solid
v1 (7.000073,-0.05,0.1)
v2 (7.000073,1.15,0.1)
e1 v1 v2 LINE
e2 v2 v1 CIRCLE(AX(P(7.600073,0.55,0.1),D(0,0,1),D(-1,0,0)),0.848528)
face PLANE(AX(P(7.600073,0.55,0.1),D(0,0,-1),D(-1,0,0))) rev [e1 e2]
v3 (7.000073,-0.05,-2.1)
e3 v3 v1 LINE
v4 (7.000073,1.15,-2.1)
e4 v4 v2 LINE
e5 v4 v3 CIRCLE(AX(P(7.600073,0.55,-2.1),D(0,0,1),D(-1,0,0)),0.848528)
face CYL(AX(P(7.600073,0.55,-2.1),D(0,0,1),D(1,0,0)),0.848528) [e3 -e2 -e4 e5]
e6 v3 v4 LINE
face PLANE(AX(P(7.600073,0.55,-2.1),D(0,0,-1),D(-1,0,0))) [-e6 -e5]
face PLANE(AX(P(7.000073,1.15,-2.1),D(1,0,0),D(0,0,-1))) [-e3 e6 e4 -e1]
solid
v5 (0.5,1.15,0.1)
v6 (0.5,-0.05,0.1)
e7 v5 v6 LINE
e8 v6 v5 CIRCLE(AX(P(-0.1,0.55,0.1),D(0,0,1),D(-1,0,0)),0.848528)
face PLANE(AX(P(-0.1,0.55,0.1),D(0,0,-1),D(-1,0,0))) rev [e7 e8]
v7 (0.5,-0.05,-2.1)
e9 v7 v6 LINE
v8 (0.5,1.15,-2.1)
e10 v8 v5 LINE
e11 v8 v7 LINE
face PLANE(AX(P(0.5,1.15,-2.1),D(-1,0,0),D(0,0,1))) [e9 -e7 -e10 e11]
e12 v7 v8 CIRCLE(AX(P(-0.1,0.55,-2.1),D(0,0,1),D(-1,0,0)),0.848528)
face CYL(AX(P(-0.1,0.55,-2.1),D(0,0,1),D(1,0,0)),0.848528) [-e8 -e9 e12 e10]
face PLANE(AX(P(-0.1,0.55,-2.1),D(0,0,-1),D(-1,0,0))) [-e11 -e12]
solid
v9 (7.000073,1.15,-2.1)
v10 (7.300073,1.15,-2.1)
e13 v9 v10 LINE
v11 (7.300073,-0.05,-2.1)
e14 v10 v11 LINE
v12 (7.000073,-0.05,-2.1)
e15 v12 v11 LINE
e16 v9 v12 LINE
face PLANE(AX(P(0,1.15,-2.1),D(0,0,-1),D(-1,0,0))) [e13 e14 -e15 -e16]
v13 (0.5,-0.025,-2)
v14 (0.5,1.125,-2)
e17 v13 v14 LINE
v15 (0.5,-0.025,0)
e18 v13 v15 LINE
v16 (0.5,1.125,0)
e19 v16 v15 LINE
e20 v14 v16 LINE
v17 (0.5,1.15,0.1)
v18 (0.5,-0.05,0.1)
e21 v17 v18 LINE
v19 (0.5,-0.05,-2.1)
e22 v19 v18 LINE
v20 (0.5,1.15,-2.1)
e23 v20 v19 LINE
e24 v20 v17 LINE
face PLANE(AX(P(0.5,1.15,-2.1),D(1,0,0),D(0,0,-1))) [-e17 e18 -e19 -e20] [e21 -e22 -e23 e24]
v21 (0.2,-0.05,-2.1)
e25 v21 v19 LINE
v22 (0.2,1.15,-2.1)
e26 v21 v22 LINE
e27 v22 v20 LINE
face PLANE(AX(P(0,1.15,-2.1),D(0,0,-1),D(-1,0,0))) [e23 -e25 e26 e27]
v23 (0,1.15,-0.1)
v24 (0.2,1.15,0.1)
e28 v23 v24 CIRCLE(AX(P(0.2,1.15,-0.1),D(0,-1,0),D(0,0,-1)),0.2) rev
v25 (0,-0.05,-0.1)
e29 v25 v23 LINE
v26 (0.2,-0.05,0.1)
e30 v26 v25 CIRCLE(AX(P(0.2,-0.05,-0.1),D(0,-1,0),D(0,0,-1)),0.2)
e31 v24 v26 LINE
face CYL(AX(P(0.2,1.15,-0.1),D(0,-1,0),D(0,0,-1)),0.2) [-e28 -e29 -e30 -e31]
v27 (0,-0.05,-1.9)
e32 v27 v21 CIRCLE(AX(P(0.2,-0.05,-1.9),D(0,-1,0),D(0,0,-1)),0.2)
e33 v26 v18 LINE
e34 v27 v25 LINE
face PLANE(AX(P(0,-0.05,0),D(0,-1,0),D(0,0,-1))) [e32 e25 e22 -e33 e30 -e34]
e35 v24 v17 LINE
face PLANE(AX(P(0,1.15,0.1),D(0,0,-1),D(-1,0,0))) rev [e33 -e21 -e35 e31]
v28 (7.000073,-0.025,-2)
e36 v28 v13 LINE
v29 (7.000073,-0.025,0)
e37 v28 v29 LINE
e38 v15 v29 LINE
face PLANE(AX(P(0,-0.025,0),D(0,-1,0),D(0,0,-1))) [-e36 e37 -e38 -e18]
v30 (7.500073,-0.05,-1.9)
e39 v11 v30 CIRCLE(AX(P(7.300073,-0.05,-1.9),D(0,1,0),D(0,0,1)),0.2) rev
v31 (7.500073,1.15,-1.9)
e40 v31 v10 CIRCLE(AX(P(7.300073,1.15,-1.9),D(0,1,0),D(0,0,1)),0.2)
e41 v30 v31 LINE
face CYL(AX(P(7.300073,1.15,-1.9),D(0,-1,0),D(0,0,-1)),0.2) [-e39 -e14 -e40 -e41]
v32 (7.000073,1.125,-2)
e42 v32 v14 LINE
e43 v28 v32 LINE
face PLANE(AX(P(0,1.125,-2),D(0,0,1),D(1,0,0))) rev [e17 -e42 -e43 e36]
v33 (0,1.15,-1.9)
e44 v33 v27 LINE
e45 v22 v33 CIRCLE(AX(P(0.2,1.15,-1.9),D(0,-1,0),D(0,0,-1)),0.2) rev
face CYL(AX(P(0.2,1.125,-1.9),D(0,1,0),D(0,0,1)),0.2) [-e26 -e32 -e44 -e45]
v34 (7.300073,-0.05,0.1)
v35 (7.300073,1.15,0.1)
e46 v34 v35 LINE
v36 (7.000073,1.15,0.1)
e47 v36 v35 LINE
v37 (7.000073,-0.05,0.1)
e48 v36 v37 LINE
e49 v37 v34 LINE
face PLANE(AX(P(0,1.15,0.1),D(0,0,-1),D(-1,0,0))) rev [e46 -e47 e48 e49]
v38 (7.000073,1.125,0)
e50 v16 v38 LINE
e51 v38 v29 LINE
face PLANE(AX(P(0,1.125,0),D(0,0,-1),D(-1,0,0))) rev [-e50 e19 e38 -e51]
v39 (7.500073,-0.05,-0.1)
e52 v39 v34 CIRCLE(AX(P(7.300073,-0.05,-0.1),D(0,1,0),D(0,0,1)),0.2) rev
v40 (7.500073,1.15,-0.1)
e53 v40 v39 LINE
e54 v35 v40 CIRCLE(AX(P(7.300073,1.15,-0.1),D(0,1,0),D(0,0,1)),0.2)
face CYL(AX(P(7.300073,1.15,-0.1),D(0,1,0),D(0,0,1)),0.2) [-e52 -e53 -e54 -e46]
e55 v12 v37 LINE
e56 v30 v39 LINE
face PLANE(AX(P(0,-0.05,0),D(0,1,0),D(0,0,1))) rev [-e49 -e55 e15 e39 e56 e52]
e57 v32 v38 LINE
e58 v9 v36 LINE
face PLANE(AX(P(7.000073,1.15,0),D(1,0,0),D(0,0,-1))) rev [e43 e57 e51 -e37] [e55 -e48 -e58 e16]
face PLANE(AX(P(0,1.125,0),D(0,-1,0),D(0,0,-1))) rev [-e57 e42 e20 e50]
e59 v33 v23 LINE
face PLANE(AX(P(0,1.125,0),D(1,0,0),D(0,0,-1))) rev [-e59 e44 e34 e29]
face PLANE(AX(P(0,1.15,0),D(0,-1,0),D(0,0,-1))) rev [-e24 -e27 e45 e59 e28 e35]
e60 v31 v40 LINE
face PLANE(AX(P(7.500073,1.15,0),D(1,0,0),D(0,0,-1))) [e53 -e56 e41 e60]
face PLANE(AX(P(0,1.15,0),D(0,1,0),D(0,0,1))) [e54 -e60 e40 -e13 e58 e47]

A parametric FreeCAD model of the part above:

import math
import FreeCAD as App
import Part
import Sketcher
Q = App.Units.Quantity


def edges_at(feature, points):
    """Names of the edges that pass closest to the given points."""
    edges = feature.Shape.Edges
    near = lambda p: min(range(len(edges)), key=lambda i: edges[i].distToShape(Part.Vertex(*p))[0])
    return sorted({f"Edge{near(p) + 1}" for p in points})


def add_polygon(sketch, points):
    """Adds a closed chain of lines whose ends are joined by coincident constraints."""
    first, n = sketch.GeometryCount, len(points)
    for a, b in zip(points, points[1:] + points[:1]):
        sketch.addGeometry(Part.LineSegment(App.Vector(*a, 0), App.Vector(*b, 0)), False)
    for i in range(n):
        sketch.addConstraint(Sketcher.Constraint("Coincident", first + i, 2, first + (i + 1) % n, 1))

doc = App.newDocument("Part")
body = doc.addObject("PartDesign::Body", "Body")

# Sketch on XZ plane
sketch1 = body.newObject("Sketcher::SketchObject", "Sketch")
sketch1.AttachmentSupport = (doc.getObject("XZ_Plane"), [""])
sketch1.MapMode = "FlatFace"
sketch1.AttachmentOffset = App.Placement(App.Vector(0, 0, 0.025), App.Rotation())
add_polygon(sketch1, [(0, -2), (0, 0), (7.5, 0), (7.5, -2)])  # lines 0-3
sketch1.addConstraint([
    Sketcher.Constraint("Vertical", 0),
    Sketcher.Constraint("Horizontal", 1),
    Sketcher.Constraint("Vertical", 2),
    Sketcher.Constraint("Horizontal", 3),
    Sketcher.Constraint("Coincident", 0, 2, -1, 1),
    Sketcher.Constraint("DistanceY", 0, 1, 0, 2, Q("2 mm")),
    Sketcher.Constraint("DistanceX", 1, 1, 1, 2, Q("7.5 mm")),
])
pad1 = body.newObject("PartDesign::Pad", "Pad")
pad1.Profile = sketch1
pad1.Length = 1.15
pad1.Reversed = True

# Sketch on XZ plane
sketch2 = body.newObject("Sketcher::SketchObject", "Sketch001")
sketch2.AttachmentSupport = (doc.getObject("XZ_Plane"), [""])
sketch2.MapMode = "FlatFace"
sketch2.AttachmentOffset = App.Placement(App.Vector(0, 0, 0.05), App.Rotation())
add_polygon(sketch2, [(7.000073, -2.1), (7.000073, 0.1), (7.500073, 0.1), (7.500073, -2.1)])  # lines 0-3
add_polygon(sketch2, [(0, -2.1), (0, 0.1), (0.5, 0.1), (0.5, -2.1)])  # lines 4-7
sketch2.addConstraint([
    Sketcher.Constraint("Vertical", 0),
    Sketcher.Constraint("Horizontal", 1),
    Sketcher.Constraint("Vertical", 2),
    Sketcher.Constraint("Horizontal", 3),
    Sketcher.Constraint("Vertical", 4),
    Sketcher.Constraint("Horizontal", 5),
    Sketcher.Constraint("Vertical", 6),
    Sketcher.Constraint("Horizontal", 7),
    Sketcher.Constraint("PointOnObject", 4, 2, -2),
    Sketcher.Constraint("Horizontal", 1, 2, 4, 2),
    Sketcher.Constraint("Horizontal", 3, 2, 6, 2),
    Sketcher.Constraint("Equal", 3, 5),
    Sketcher.Constraint("DistanceX", 1, 1, 1, 2, Q("0.5 mm")),
    Sketcher.Constraint("DistanceY", 0, 1, 0, 2, Q("2.2 mm")),
    Sketcher.Constraint("DistanceY", -1, 1, 0, 2, Q("0.1 mm")),
    Sketcher.Constraint("DistanceX", -1, 1, 0, 2, Q("7.000073 mm")),
])
pad2 = body.newObject("PartDesign::Pad", "Pad001")
pad2.Profile = sketch2
pad2.Length = 1.2
pad2.Reversed = True
doc.recompute()

fillet = body.newObject("PartDesign::Fillet", "Fillet")
fillet.Base = (pad2, edges_at(pad2, [
    (7.5, 0.55, 0.1),
    (7.5, 0.55, -2.1),
    (0, 0.55, -2.1),
    (0, 0.55, 0.1),
]))
fillet.Radius = 0.2
body2 = doc.addObject("PartDesign::Body", "Body001")

# Sketch on XY plane
sketch3 = body2.newObject("Sketcher::SketchObject", "Sketch002")
sketch3.AttachmentSupport = (doc.getObject("XY_Plane001"), [""])
sketch3.MapMode = "FlatFace"
sketch3.AttachmentOffset = App.Placement(App.Vector(0, 0, 0.1), App.Rotation())
sketch3.addGeometry([
    Part.LineSegment(App.Vector(7.000073, -0.05, 0), App.Vector(7.000073, 1.15, 0)),
    Part.ArcOfCircle(Part.Circle(App.Vector(7.600073, 0.55, 0), App.Vector(0, 0, 1), 0.848528), math.radians(135), math.radians(225)),
], False)
sketch3.addConstraint([
    Sketcher.Constraint("Coincident", 0, 1, 1, 2),
    Sketcher.Constraint("Coincident", 1, 1, 0, 2),
    Sketcher.Constraint("Vertical", 0),
    Sketcher.Constraint("DistanceY", 0, 1, 0, 2, Q("1.2 mm")),
    Sketcher.Constraint("DistanceX", 0, 1, 1, 3, Q("0.6 mm")),
    Sketcher.Constraint("DistanceY", -1, 1, 1, 3, Q("0.55 mm")),
    Sketcher.Constraint("DistanceX", -1, 1, 1, 3, Q("7.600073 mm")),
])
pad3 = body2.newObject("PartDesign::Pad", "Pad002")
pad3.Profile = sketch3
pad3.Length = 2.2
pad3.Reversed = True
body3 = doc.addObject("PartDesign::Body", "Body002")

# Sketch on XY plane
sketch4 = body3.newObject("Sketcher::SketchObject", "Sketch003")
sketch4.AttachmentSupport = (doc.getObject("XY_Plane002"), [""])
sketch4.MapMode = "FlatFace"
sketch4.AttachmentOffset = App.Placement(App.Vector(0, 0, 0.1), App.Rotation())
sketch4.addGeometry([
    Part.LineSegment(App.Vector(0.5, 1.15, 0), App.Vector(0.5, -0.05, 0)),
    Part.ArcOfCircle(Part.Circle(App.Vector(-0.1, 0.55, 0), App.Vector(0, 0, 1), 0.848528), math.radians(-45), math.radians(45)),
], False)
sketch4.addConstraint([
    Sketcher.Constraint("Coincident", 0, 1, 1, 2),
    Sketcher.Constraint("Coincident", 1, 1, 0, 2),
    Sketcher.Constraint("Vertical", 0),
    Sketcher.Constraint("DistanceY", 0, 2, 0, 1, Q("1.2 mm")),
    Sketcher.Constraint("DistanceX", 1, 3, -1, 1, Q("0.1 mm")),
    Sketcher.Constraint("DistanceX", -1, 1, 0, 1, Q("0.5 mm")),
    Sketcher.Constraint("DistanceY", -1, 1, 1, 3, Q("0.55 mm")),
])
pad4 = body3.newObject("PartDesign::Pad", "Pad003")
pad4.Profile = sketch4
pad4.Length = 2.2
pad4.Reversed = True

doc.recompute()
